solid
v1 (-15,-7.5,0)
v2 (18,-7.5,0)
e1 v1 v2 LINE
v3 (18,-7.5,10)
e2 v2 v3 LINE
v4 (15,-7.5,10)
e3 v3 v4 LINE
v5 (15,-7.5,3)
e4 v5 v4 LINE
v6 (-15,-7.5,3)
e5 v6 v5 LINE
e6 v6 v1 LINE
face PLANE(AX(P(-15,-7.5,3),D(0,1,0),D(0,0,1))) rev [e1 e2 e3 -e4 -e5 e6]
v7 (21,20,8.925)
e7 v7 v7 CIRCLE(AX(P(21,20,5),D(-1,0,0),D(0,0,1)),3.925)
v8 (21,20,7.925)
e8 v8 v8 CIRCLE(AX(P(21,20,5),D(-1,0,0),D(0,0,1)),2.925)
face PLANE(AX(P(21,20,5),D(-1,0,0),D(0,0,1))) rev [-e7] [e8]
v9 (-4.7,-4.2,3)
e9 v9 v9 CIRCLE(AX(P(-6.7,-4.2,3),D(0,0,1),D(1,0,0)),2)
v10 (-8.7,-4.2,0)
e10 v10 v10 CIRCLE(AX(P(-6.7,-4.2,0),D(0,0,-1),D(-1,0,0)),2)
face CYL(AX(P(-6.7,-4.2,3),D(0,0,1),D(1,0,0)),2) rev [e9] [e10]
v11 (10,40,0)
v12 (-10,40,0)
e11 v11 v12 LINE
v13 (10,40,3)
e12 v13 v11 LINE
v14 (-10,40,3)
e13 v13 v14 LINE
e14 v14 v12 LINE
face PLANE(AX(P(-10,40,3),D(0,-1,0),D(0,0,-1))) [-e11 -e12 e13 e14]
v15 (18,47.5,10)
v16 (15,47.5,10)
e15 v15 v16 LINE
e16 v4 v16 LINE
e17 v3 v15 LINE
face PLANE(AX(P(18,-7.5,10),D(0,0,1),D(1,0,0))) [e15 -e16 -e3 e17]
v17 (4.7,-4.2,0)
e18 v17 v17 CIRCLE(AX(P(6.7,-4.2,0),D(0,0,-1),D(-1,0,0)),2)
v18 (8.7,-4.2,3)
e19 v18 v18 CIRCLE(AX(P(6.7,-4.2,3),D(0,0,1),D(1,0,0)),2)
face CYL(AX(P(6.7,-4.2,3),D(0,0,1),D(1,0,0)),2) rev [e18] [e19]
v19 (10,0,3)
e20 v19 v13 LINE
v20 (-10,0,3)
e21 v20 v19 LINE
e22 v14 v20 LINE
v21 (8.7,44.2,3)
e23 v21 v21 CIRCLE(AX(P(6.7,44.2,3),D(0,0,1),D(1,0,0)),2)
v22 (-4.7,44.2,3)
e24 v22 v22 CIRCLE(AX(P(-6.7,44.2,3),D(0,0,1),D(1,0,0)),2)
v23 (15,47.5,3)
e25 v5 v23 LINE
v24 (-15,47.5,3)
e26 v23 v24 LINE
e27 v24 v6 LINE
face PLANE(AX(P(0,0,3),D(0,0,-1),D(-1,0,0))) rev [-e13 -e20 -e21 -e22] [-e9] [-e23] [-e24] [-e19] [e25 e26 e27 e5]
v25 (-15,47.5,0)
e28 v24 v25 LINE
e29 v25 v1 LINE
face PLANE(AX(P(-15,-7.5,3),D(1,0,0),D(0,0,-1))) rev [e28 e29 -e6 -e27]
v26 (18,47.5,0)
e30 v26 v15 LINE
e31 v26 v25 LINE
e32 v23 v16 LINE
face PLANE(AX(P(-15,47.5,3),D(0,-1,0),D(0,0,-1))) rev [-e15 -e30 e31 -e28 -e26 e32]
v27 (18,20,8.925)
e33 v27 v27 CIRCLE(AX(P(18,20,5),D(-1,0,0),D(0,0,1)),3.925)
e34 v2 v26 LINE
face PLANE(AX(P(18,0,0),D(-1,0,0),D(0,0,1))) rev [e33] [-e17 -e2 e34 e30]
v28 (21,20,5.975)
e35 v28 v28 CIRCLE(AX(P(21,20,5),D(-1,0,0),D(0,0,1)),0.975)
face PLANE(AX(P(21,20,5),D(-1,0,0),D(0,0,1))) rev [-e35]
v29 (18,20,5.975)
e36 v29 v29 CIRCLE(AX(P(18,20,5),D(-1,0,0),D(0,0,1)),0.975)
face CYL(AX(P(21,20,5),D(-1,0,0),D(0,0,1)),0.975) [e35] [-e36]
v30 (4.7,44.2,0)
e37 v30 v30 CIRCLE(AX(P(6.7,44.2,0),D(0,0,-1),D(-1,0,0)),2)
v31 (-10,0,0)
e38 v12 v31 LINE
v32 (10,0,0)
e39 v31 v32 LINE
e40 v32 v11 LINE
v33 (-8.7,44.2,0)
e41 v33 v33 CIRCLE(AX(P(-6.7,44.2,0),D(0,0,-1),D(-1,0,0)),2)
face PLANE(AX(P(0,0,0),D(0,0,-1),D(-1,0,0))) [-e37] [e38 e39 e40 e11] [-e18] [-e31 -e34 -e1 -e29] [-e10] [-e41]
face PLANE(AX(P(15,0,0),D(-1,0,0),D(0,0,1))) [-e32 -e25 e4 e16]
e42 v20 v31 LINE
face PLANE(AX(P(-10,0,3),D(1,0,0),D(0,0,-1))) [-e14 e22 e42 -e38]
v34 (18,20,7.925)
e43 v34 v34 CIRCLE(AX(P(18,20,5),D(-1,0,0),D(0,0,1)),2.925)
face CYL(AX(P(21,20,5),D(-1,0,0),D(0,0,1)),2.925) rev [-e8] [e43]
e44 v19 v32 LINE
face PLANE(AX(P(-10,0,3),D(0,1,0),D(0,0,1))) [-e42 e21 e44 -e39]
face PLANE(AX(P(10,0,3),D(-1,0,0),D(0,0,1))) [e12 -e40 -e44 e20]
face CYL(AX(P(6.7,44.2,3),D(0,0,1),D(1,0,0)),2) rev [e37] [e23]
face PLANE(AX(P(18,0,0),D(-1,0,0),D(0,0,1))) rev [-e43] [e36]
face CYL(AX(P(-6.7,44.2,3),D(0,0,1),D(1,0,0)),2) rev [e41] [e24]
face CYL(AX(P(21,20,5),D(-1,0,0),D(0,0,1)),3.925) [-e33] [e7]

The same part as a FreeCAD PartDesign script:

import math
import FreeCAD as App
import Part
import Sketcher

V = App.Vector
Q = App.Units.Quantity


def add_polygon(sketch, points):
    """Adds a closed chain of lines whose ends are joined by coincident constraints."""
    first, n = sketch.GeometryCount, len(points)
    for a, b in zip(points, points[1:] + points[:1]):
        sketch.addGeometry(Part.LineSegment(App.Vector(*a, 0), App.Vector(*b, 0)), False)
    for i in range(n):
        sketch.addConstraint(Sketcher.Constraint("Coincident", first + i, 2, first + (i + 1) % n, 1))

doc = App.newDocument("Part")
params = doc.addObject("Spreadsheet::Sheet", "Params")
for row, (alias, value) in enumerate([
    ("sketch1_width", "30 mm"),
    ("sketch1_width2", "20 mm"),
    ("sketch1_height", "55 mm"),
    ("sketch1_height2", "40 mm"),
    ("pad1_length", "3 mm"),
    ("sketch2_diameter", "4 mm"),
    ("hole_diameter", "4 mm"),
    ("hole_depth", "4 mm"),
    ("sketch3_width", "55 mm"),
    ("sketch3_height", "10 mm"),
    ("pad2_length", "3 mm"),
    ("sketch4_diameter", "1.95 mm"),
    ("pad3_length", "3 mm"),
], start=1):
    params.set(f"A{row}", alias)
    params.set(f"B{row}", "=" + value)
    params.setAlias(f"B{row}", alias)

body = doc.addObject("PartDesign::Body", "Body")

sketch1 = body.newObject("Sketcher::SketchObject", "Sketch")
sketch1.AttachmentSupport = (doc.getObject("XY_Plane"), [""])
sketch1.MapMode = "FlatFace"
add_polygon(sketch1, [(-15, 48), (-15, -8), (15, -8), (15, 48)])
add_polygon(sketch1, [(10, 0), (-10, 0), (-10, 40), (10, 40)])
sketch1.addConstraint(Sketcher.Constraint("Vertical", 0))
sketch1.addConstraint(Sketcher.Constraint("Horizontal", 1))
sketch1.addConstraint(Sketcher.Constraint("Vertical", 2))
sketch1.addConstraint(Sketcher.Constraint("Horizontal", 3))
sketch1.addConstraint(Sketcher.Constraint("Horizontal", 4))
sketch1.addConstraint(Sketcher.Constraint("Vertical", 5))
sketch1.addConstraint(Sketcher.Constraint("Horizontal", 6))
sketch1.addConstraint(Sketcher.Constraint("Vertical", 7))
sketch1.addConstraint(Sketcher.Constraint("Symmetric", 4, 2, 7, 2, -1, 1))
sketch1.addConstraint(Sketcher.Constraint("DistanceX", 1, 1, 1, 2, Q("30 mm")))
sketch1.addConstraint(Sketcher.Constraint("DistanceX", 4, 2, 4, 1, Q("20 mm")))
sketch1.addConstraint(Sketcher.Constraint("DistanceY", 0, 2, 0, 1, Q("55 mm")))
sketch1.addConstraint(Sketcher.Constraint("DistanceY", 5, 1, 5, 2, Q("40 mm")))
sketch1.addConstraint(Sketcher.Constraint("DistanceX", 0, 2, -1, 1, Q("15 mm")))
sketch1.addConstraint(Sketcher.Constraint("DistanceY", 0, 2, -1, 1, Q("7.5 mm")))
sketch1.setExpression("Constraints[17]", "Params.sketch1_width")
sketch1.setExpression("Constraints[18]", "Params.sketch1_width2")
sketch1.setExpression("Constraints[19]", "Params.sketch1_height")
sketch1.setExpression("Constraints[20]", "Params.sketch1_height2")
pad1 = body.newObject("PartDesign::Pad", "Pad")
pad1.Profile = sketch1
pad1.setExpression("Length", "Params.pad1_length")

sketch2 = body.newObject("Sketcher::SketchObject", "Sketch001")
sketch2.AttachmentSupport = (doc.getObject("XY_Plane"), [""])
sketch2.MapMode = "FlatFace"
sketch2.AttachmentOffset = App.Placement(V(0, 0, 3), App.Rotation())
sketch2.addGeometry(Part.Circle(V(-6.7, 44.2, 0), V(0, 0, 1), 2), False)
sketch2.addGeometry(Part.Circle(V(-6.7, -4.2, 0), V(0, 0, 1), 2), False)
sketch2.addGeometry(Part.Circle(V(6.7, 44.2, 0), V(0, 0, 1), 2), False)
sketch2.addGeometry(Part.Circle(V(6.7, -4.2, 0), V(0, 0, 1), 2), False)
sketch2.addConstraint(Sketcher.Constraint("Equal", 0, 1))
sketch2.addConstraint(Sketcher.Constraint("Equal", 1, 2))
sketch2.addConstraint(Sketcher.Constraint("Equal", 2, 3))
sketch2.addConstraint(Sketcher.Constraint("Symmetric", 0, 3, 2, 3, -2))
sketch2.addConstraint(Sketcher.Constraint("Symmetric", 1, 3, 3, 3, -2))
sketch2.addConstraint(Sketcher.Constraint("Vertical", 0, 3, 1, 3))
sketch2.addConstraint(Sketcher.Constraint("Diameter", 0, Q("4 mm")))
sketch2.addConstraint(Sketcher.Constraint("DistanceX", 0, 3, -1, 1, Q("6.7 mm")))
sketch2.addConstraint(Sketcher.Constraint("DistanceY", -1, 1, 0, 3, Q("44.2 mm")))
sketch2.addConstraint(Sketcher.Constraint("DistanceY", 1, 3, -1, 1, Q("4.2 mm")))
sketch2.setExpression("Constraints[6]", "Params.sketch2_diameter")
doc.recompute()
hole = body.newObject("PartDesign::Hole", "Hole")
hole.Profile = sketch2
hole.ThreadType = "None"
hole.setExpression("Diameter", "Params.hole_diameter")
hole.DepthType = "Dimension"
hole.setExpression("Depth", "Params.hole_depth")
hole.DrillPoint = "Angled"
hole.DrillPointAngle = 118

sketch3 = body.newObject("Sketcher::SketchObject", "Sketch002")
sketch3.AttachmentSupport = (doc.getObject("YZ_Plane"), [""])
sketch3.MapMode = "FlatFace"
sketch3.AttachmentOffset = App.Placement(V(0, 0, 15), App.Rotation())
add_polygon(sketch3, [(48, 10), (-8, 10), (-8, 0), (48, 0)])
sketch3.addConstraint(Sketcher.Constraint("Horizontal", 0))
sketch3.addConstraint(Sketcher.Constraint("Vertical", 1))
sketch3.addConstraint(Sketcher.Constraint("Horizontal", 2))
sketch3.addConstraint(Sketcher.Constraint("Vertical", 3))
sketch3.addConstraint(Sketcher.Constraint("PointOnObject", 1, 2, -1))
sketch3.addConstraint(Sketcher.Constraint("DistanceX", 0, 2, 0, 1, Q("55 mm")))
sketch3.addConstraint(Sketcher.Constraint("DistanceY", 1, 2, 1, 1, Q("10 mm")))
sketch3.addConstraint(Sketcher.Constraint("DistanceX", 0, 2, -1, 1, Q("7.5 mm")))
sketch3.setExpression("Constraints[9]", "Params.sketch3_width")
sketch3.setExpression("Constraints[10]", "Params.sketch3_height")
pad2 = body.newObject("PartDesign::Pad", "Pad001")
pad2.Profile = sketch3
pad2.setExpression("Length", "Params.pad2_length")

sketch4 = body.newObject("Sketcher::SketchObject", "Sketch003")
sketch4.AttachmentSupport = (doc.getObject("YZ_Plane"), [""])
sketch4.MapMode = "FlatFace"
sketch4.AttachmentOffset = App.Placement(V(0, 0, 18), App.Rotation())
sketch4.addGeometry(Part.ArcOfCircle(Part.Circle(V(20, 5, 0), V(0, 0, 1), 3.9), math.radians(-90), math.radians(-31)), False)
sketch4.addGeometry(Part.ArcOfCircle(Part.Circle(V(20, 5, 0), V(0, 0, 1), 3.9), math.radians(-31), math.radians(211)), False)
sketch4.addGeometry(Part.ArcOfCircle(Part.Circle(V(20, 5, 0), V(0, 0, 1), 3.9), math.radians(-149), math.radians(-90)), False)
sketch4.addGeometry(Part.ArcOfCircle(Part.Circle(V(20, 5, 0), V(0, 0, 1), 2.9), math.radians(-90), math.radians(-43)), False)
sketch4.addGeometry(Part.ArcOfCircle(Part.Circle(V(20, 5, 0), V(0, 0, 1), 2.9), math.radians(-137), math.radians(-90)), False)
sketch4.addGeometry(Part.ArcOfCircle(Part.Circle(V(20, 5, 0), V(0, 0, 1), 2.9), math.radians(-43), math.radians(223)), False)
sketch4.addGeometry(Part.Circle(V(20, 5, 0), V(0, 0, 1), 1), False)
sketch4.addConstraint(Sketcher.Constraint("Tangent", 0, 2, 1, 1))
sketch4.addConstraint(Sketcher.Constraint("Tangent", 1, 2, 2, 1))
sketch4.addConstraint(Sketcher.Constraint("Tangent", 2, 2, 0, 1))
sketch4.addConstraint(Sketcher.Constraint("Tangent", 3, 1, 4, 2))
sketch4.addConstraint(Sketcher.Constraint("Tangent", 4, 1, 5, 2))
sketch4.addConstraint(Sketcher.Constraint("Tangent", 5, 1, 3, 2))
sketch4.addConstraint(Sketcher.Constraint("Coincident", 3, 3, 0, 3))
sketch4.addConstraint(Sketcher.Constraint("Coincident", 6, 3, 0, 3))
sketch4.addConstraint(Sketcher.Constraint("Horizontal", 0, 2, 1, 2))
sketch4.addConstraint(Sketcher.Constraint("Horizontal", 1, 2, 4, 1))
sketch4.addConstraint(Sketcher.Constraint("Horizontal", 4, 1, 5, 1))
sketch4.addConstraint(Sketcher.Constraint("Vertical", 6, 3, 2, 2))
sketch4.addConstraint(Sketcher.Constraint("Vertical", 2, 2, 3, 1))
sketch4.addConstraint(Sketcher.Constraint("Diameter", 6, Q("1.95 mm")))
sketch4.addConstraint(Sketcher.Constraint("DistanceX", -1, 1, 0, 3, Q("20 mm")))
sketch4.addConstraint(Sketcher.Constraint("DistanceY", -1, 1, 0, 3, Q("5 mm")))
sketch4.addConstraint(Sketcher.Constraint("DistanceY", -1, 1, 0, 2, Q("3 mm")))
sketch4.addConstraint(Sketcher.Constraint("Radius", 0, Q("3.925 mm")))
sketch4.addConstraint(Sketcher.Constraint("Radius", 3, Q("2.925 mm")))
sketch4.setExpression("Constraints[13]", "Params.sketch4_diameter")
pad3 = body.newObject("PartDesign::Pad", "Pad002")
pad3.Profile = sketch4
pad3.setExpression("Length", "Params.pad3_length")

doc.recompute()
